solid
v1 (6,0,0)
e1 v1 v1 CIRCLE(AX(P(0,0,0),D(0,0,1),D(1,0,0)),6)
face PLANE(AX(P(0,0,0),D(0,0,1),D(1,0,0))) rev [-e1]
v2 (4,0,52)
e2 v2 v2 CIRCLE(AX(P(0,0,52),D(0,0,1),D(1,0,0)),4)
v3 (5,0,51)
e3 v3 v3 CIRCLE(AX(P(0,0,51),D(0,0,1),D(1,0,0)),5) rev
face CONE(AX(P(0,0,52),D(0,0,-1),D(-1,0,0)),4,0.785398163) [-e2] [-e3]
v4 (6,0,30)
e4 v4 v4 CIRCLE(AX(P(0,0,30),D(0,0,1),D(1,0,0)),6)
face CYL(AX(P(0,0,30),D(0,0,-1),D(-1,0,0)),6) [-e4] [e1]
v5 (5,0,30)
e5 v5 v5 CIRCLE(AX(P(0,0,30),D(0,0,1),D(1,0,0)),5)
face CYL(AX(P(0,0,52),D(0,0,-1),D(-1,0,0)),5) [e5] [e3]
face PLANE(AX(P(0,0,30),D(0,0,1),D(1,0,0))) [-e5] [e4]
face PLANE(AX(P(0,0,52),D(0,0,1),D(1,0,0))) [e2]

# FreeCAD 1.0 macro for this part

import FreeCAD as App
import Part
import Sketcher

V = App.Vector
Q = App.Units.Quantity


def edges_at(feature, points):
    """Names of the edges that pass closest to the given points."""
    edges = feature.Shape.Edges
    near = lambda p: min(range(len(edges)), key=lambda i: edges[i].distToShape(Part.Vertex(*p))[0])
    return sorted({f"Edge{near(p) + 1}" for p in points})

doc = App.newDocument("Part")
params = doc.addObject("Spreadsheet::Sheet", "Params")
for row, (alias, value) in enumerate([
    ("sketch1_diameter", "12 mm"),
    ("pad1_length", "30 mm"),
    ("sketch2_diameter", "10 mm"),
    ("pad2_length", "22 mm"),
    ("chamfer_size", "1 mm"),
], start=1):
    params.set(f"A{row}", alias)
    params.set(f"B{row}", "=" + value)
    params.setAlias(f"B{row}", alias)

body = doc.addObject("PartDesign::Body", "Body")

# Sketch on XY plane
sketch1 = body.newObject("Sketcher::SketchObject", "Sketch")
sketch1.AttachmentSupport = (doc.getObject("XY_Plane"), [""])
sketch1.MapMode = "FlatFace"
sketch1.addGeometry(Part.Circle(V(0, 0, 0), V(0, 0, 1), 6), False)
sketch1.addConstraint([
    Sketcher.Constraint("Coincident", 0, 3, -1, 1),
    Sketcher.Constraint("Diameter", 0, Q("12 mm")),
])
sketch1.setExpression("Constraints[1]", "Params.sketch1_diameter")
pad1 = body.newObject("PartDesign::Pad", "Pad")
pad1.Profile = sketch1
pad1.setExpression("Length", "Params.pad1_length")

# Sketch on XY plane
sketch2 = body.newObject("Sketcher::SketchObject", "Sketch001")
sketch2.AttachmentSupport = (doc.getObject("XY_Plane"), [""])
sketch2.MapMode = "FlatFace"
sketch2.AttachmentOffset = App.Placement(V(0, 0, 30), App.Rotation())
sketch2.addGeometry(Part.Circle(V(0, 0, 0), V(0, 0, 1), 5), False)
sketch2.addConstraint([
    Sketcher.Constraint("Coincident", 0, 3, -1, 1),
    Sketcher.Constraint("Diameter", 0, Q("10 mm")),
])
sketch2.setExpression("Constraints[1]", "Params.sketch2_diameter")
pad2 = body.newObject("PartDesign::Pad", "Pad001")
pad2.Profile = sketch2
pad2.setExpression("Length", "Params.pad2_length")
doc.recompute()

chamfer = body.newObject("PartDesign::Chamfer", "Chamfer")
chamfer.Base = (pad2, edges_at(pad2, [(-5, 0, 52)]))
chamfer.setExpression("Size", "Params.chamfer_size")

doc.recompute()
